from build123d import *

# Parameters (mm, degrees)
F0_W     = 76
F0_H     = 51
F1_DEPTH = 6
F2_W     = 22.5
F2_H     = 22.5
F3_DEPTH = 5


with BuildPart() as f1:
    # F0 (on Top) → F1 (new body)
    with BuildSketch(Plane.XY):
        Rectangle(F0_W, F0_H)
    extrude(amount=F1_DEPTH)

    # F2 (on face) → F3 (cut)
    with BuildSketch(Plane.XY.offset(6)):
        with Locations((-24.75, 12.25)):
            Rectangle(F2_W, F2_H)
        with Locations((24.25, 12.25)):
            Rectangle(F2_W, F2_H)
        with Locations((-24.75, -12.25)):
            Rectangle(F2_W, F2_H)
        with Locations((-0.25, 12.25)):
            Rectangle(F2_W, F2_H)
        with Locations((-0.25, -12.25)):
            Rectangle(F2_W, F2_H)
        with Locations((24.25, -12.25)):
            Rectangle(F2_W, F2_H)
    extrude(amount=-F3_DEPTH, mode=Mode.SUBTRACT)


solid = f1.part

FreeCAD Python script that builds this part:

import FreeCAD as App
import Part
import Sketcher
from FreeCAD import Vector
Q = App.Units.Quantity

doc = App.newDocument("Part")
params = doc.addObject("Spreadsheet::Sheet", "Params")
for row, (alias, value) in enumerate([
    ("sketch1_width", "76 mm"),
    ("sketch1_height", "51 mm"),
    ("pad1_length", "6 mm"),
    ("sketch2_width", "22.5 mm"),
    ("pocket1_length", "5 mm"),
], start=1):
    params.set(f"A{row}", alias)
    params.set(f"B{row}", "=" + value)
    params.setAlias(f"B{row}", alias)

body = doc.addObject("PartDesign::Body", "Body")

sketch1 = body.newObject("Sketcher::SketchObject", "Sketch")
sketch1.AttachmentSupport = (doc.getObject("XY_Plane"), [""])
sketch1.MapMode = "FlatFace"
sketch1.addGeometry([
    Part.LineSegment(Vector(-38, 25.5, 0), Vector(-38, -25.5, 0)),
    Part.LineSegment(Vector(-38, -25.5, 0), Vector(38, -25.5, 0)),
    Part.LineSegment(Vector(38, -25.5, 0), Vector(38, 25.5, 0)),
    Part.LineSegment(Vector(38, 25.5, 0), Vector(-38, 25.5, 0)),
], False)
sketch1.addConstraint([
    Sketcher.Constraint("Coincident", 0, 2, 1, 1),
    Sketcher.Constraint("Coincident", 1, 2, 2, 1),
    Sketcher.Constraint("Coincident", 2, 2, 3, 1),
    Sketcher.Constraint("Coincident", 3, 2, 0, 1),
    Sketcher.Constraint("Vertical", 0),
    Sketcher.Constraint("Horizontal", 1),
    Sketcher.Constraint("Vertical", 2),
    Sketcher.Constraint("Horizontal", 3),
    Sketcher.Constraint("Symmetric", 0, 2, 2, 2, -1, 1),
    Sketcher.Constraint("DistanceX", 1, 1, 1, 2, Q("76 mm")),
    Sketcher.Constraint("DistanceY", 0, 2, 0, 1, Q("51 mm")),
])
sketch1.setExpression("Constraints[9]", "Params.sketch1_width")
sketch1.setExpression("Constraints[10]", "Params.sketch1_height")
pad1 = body.newObject("PartDesign::Pad", "Pad")
pad1.Profile = sketch1
pad1.setExpression("Length", "Params.pad1_length")

sketch2 = body.newObject("Sketcher::SketchObject", "Sketch001")
sketch2.AttachmentSupport = (doc.getObject("XY_Plane"), [""])
sketch2.MapMode = "FlatFace"
sketch2.AttachmentOffset = App.Placement(Vector(0, 0, 6), App.Rotation())
sketch2.addGeometry([
    Part.LineSegment(Vector(-36, 23.5, 0), Vector(-36, 1, 0)),
    Part.LineSegment(Vector(-36, 1, 0), Vector(-13.5, 1, 0)),
    Part.LineSegment(Vector(-13.5, 1, 0), Vector(-13.5, 23.5, 0)),
    Part.LineSegment(Vector(-13.5, 23.5, 0), Vector(-36, 23.5, 0)),
    Part.LineSegment(Vector(13, 23.5, 0), Vector(13, 1, 0)),
    Part.LineSegment(Vector(13, 1, 0), Vector(35.5, 1, 0)),
    Part.LineSegment(Vector(35.5, 1, 0), Vector(35.5, 23.5, 0)),
    Part.LineSegment(Vector(35.5, 23.5, 0), Vector(13, 23.5, 0)),
    Part.LineSegment(Vector(-36, -1, 0), Vector(-36, -23.5, 0)),
    Part.LineSegment(Vector(-36, -23.5, 0), Vector(-13.5, -23.5, 0)),
    Part.LineSegment(Vector(-13.5, -23.5, 0), Vector(-13.5, -1, 0)),
    Part.LineSegment(Vector(-13.5, -1, 0), Vector(-36, -1, 0)),
    Part.LineSegment(Vector(-11.5, 23.5, 0), Vector(-11.5, 1, 0)),
    Part.LineSegment(Vector(-11.5, 1, 0), Vector(11, 1, 0)),
    Part.LineSegment(Vector(11, 1, 0), Vector(11, 23.5, 0)),
    Part.LineSegment(Vector(11, 23.5, 0), Vector(-11.5, 23.5, 0)),
    Part.LineSegment(Vector(-11.5, -1, 0), Vector(-11.5, -23.5, 0)),
    Part.LineSegment(Vector(-11.5, -23.5, 0), Vector(11, -23.5, 0)),
    Part.LineSegment(Vector(11, -23.5, 0), Vector(11, -1, 0)),
    Part.LineSegment(Vector(11, -1, 0), Vector(-11.5, -1, 0)),
    Part.LineSegment(Vector(13, -1, 0), Vector(13, -23.5, 0)),
    Part.LineSegment(Vector(13, -23.5, 0), Vector(35.5, -23.5, 0)),
    Part.LineSegment(Vector(35.5, -23.5, 0), Vector(35.5, -1, 0)),
    Part.LineSegment(Vector(35.5, -1, 0), Vector(13, -1, 0)),
], False)
sketch2.addConstraint([
    Sketcher.Constraint("Coincident", 0, 2, 1, 1),
    Sketcher.Constraint("Coincident", 1, 2, 2, 1),
    Sketcher.Constraint("Coincident", 2, 2, 3, 1),
    Sketcher.Constraint("Coincident", 3, 2, 0, 1),
    Sketcher.Constraint("Coincident", 4, 2, 5, 1),
    Sketcher.Constraint("Coincident", 5, 2, 6, 1),
    Sketcher.Constraint("Coincident", 6, 2, 7, 1),
    Sketcher.Constraint("Coincident", 7, 2, 4, 1),
    Sketcher.Constraint("Coincident", 8, 2, 9, 1),
    Sketcher.Constraint("Coincident", 9, 2, 10, 1),
    Sketcher.Constraint("Coincident", 10, 2, 11, 1),
    Sketcher.Constraint("Coincident", 11, 2, 8, 1),
    Sketcher.Constraint("Coincident", 12, 2, 13, 1),
    Sketcher.Constraint("Coincident", 13, 2, 14, 1),
    Sketcher.Constraint("Coincident", 14, 2, 15, 1),
    Sketcher.Constraint("Coincident", 15, 2, 12, 1),
    Sketcher.Constraint("Coincident", 16, 2, 17, 1),
    Sketcher.Constraint("Coincident", 17, 2, 18, 1),
    Sketcher.Constraint("Coincident", 18, 2, 19, 1),
    Sketcher.Constraint("Coincident", 19, 2, 16, 1),
    Sketcher.Constraint("Coincident", 20, 2, 21, 1),
    Sketcher.Constraint("Coincident", 21, 2, 22, 1),
    Sketcher.Constraint("Coincident", 22, 2, 23, 1),
    Sketcher.Constraint("Coincident", 23, 2, 20, 1),
    Sketcher.Constraint("Vertical", 0),
    Sketcher.Constraint("Horizontal", 1),
    Sketcher.Constraint("Vertical", 2),
    Sketcher.Constraint("Horizontal", 3),
    Sketcher.Constraint("Vertical", 4),
    Sketcher.Constraint("Horizontal", 5),
    Sketcher.Constraint("Vertical", 6),
    Sketcher.Constraint("Horizontal", 7),
    Sketcher.Constraint("Vertical", 8),
    Sketcher.Constraint("Horizontal", 9),
    Sketcher.Constraint("Vertical", 10),
    Sketcher.Constraint("Horizontal", 11),
    Sketcher.Constraint("Vertical", 12),
    Sketcher.Constraint("Horizontal", 13),
    Sketcher.Constraint("Vertical", 14),
    Sketcher.Constraint("Horizontal", 15),
    Sketcher.Constraint("Vertical", 16),
    Sketcher.Constraint("Horizontal", 17),
    Sketcher.Constraint("Vertical", 18),
    Sketcher.Constraint("Horizontal", 19),
    Sketcher.Constraint("Vertical", 20),
    Sketcher.Constraint("Horizontal", 21),
    Sketcher.Constraint("Vertical", 22),
    Sketcher.Constraint("Horizontal", 23),
    Sketcher.Constraint("Symmetric", 3, 2, 8, 2, -1),
    Sketcher.Constraint("Symmetric", 1, 2, 10, 2, -1),
    Sketcher.Constraint("Symmetric", 15, 2, 16, 2, -1),
    Sketcher.Constraint("Symmetric", 13, 2, 18, 2, -1),
    Sketcher.Constraint("Symmetric", 7, 2, 20, 2, -1),
    Sketcher.Constraint("Symmetric", 5, 2, 22, 2, -1),
    Sketcher.Constraint("Horizontal", 1, 2, 4, 2),
    Sketcher.Constraint("Horizontal", 3, 2, 6, 2),
    Sketcher.Constraint("Horizontal", 5, 2, 12, 2),
    Sketcher.Constraint("Horizontal", 7, 2, 14, 2),
    Sketcher.Constraint("Equal", 3, 5),
    Sketcher.Constraint("Equal", 11, 13),
    Sketcher.Constraint("Equal", 23, 0),
    Sketcher.Constraint("DistanceX", 1, 1, 1, 2, Q("22.5 mm")),
    Sketcher.Constraint("DistanceX", 0, 2, -1, 1, Q("36 mm")),
    Sketcher.Constraint("DistanceY", -1, 1, 0, 2, Q("1 mm")),
    Sketcher.Constraint("DistanceX", -1, 1, 4, 2, Q("13 mm")),
    Sketcher.Constraint("DistanceX", -1, 1, 13, 2, Q("11 mm")),
])
sketch2.setExpression("Constraints[61]", "Params.sketch2_width")
pocket1 = body.newObject("PartDesign::Pocket", "Pocket")
pocket1.Profile = sketch2
pocket1.setExpression("Length", "Params.pocket1_length")

doc.recompute()
